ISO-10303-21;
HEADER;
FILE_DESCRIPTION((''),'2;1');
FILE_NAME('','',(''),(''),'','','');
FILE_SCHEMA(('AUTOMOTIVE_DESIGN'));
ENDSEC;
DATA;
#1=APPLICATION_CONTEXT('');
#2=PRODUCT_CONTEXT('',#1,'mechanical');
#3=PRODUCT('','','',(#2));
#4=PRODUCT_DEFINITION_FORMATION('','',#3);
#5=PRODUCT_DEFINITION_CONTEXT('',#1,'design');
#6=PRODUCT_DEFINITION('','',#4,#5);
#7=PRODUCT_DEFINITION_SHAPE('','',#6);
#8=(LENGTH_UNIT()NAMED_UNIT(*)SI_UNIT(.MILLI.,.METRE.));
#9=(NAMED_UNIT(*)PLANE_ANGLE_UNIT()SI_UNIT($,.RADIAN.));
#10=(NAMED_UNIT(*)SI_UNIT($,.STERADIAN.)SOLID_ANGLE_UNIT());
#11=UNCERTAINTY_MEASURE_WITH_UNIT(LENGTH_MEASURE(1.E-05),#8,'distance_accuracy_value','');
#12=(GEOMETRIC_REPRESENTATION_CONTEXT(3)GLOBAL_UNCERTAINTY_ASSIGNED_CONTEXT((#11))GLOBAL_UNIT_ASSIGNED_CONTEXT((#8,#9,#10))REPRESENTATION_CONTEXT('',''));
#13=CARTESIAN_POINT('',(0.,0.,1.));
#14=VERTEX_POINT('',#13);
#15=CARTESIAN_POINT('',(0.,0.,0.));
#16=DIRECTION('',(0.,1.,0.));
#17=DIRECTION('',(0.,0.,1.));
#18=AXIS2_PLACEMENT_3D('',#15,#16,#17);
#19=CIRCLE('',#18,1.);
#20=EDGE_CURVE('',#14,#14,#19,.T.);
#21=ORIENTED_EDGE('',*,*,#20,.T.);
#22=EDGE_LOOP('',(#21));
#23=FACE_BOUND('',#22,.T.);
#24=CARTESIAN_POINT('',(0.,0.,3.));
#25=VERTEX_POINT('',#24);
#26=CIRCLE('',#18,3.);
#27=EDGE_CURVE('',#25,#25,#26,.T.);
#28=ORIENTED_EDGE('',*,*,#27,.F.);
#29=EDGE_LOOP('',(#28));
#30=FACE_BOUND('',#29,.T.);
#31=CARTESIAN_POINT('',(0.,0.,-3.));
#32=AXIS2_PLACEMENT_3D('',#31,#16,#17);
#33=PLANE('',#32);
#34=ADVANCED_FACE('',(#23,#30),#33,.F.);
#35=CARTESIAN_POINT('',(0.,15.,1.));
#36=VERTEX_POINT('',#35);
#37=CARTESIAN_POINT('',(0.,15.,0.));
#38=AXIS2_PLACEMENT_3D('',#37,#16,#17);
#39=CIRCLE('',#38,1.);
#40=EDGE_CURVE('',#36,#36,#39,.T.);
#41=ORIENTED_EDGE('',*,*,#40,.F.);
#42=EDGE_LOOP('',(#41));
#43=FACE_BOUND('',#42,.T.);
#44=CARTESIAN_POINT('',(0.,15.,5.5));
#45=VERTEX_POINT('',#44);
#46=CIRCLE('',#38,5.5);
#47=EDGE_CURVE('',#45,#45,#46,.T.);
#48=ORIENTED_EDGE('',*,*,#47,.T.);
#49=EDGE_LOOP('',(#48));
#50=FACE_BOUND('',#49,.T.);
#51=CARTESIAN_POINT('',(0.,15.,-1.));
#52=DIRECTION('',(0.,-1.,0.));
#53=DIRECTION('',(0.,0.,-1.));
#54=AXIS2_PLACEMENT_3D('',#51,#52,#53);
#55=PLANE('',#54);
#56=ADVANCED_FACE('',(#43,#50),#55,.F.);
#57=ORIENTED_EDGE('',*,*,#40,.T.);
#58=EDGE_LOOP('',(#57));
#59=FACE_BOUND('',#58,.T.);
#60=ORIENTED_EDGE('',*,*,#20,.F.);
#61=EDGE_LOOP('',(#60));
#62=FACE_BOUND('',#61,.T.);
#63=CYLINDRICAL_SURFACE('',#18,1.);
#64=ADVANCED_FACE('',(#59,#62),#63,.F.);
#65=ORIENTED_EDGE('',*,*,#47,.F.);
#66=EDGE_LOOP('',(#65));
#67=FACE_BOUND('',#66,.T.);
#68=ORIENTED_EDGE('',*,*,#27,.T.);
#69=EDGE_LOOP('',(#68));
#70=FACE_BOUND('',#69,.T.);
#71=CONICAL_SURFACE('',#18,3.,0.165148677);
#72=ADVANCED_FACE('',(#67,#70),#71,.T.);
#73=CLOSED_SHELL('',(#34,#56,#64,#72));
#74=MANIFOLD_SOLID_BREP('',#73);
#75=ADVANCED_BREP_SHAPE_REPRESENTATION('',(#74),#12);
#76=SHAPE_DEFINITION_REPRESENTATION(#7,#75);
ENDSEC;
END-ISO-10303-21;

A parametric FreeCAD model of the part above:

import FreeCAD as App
import Part
import Sketcher
from FreeCAD import Vector

doc = App.newDocument("Part")
body = doc.addObject("PartDesign::Body", "Body")

sketch1 = body.newObject("Sketcher::SketchObject", "Sketch")
sketch1.AttachmentSupport = (doc.getObject("YZ_Plane"), [""])
sketch1.MapMode = "FlatFace"
sketch1.addGeometry([
    Part.LineSegment(Vector(15, -5.5, 0), Vector(15, -1, 0)),
    Part.LineSegment(Vector(15, -1, 0), Vector(0, -1, 0)),
    Part.LineSegment(Vector(0, -1, 0), Vector(0, -3, 0)),
    Part.LineSegment(Vector(0, -3, 0), Vector(15, -5.5, 0)),
], False)
sketch1.addConstraint([
    Sketcher.Constraint("Coincident", 0, 2, 1, 1),
    Sketcher.Constraint("Coincident", 1, 2, 2, 1),
    Sketcher.Constraint("Coincident", 2, 2, 3, 1),
    Sketcher.Constraint("Coincident", 3, 2, 0, 1),
    Sketcher.Constraint("Vertical", 0),
    Sketcher.Constraint("Horizontal", 1),
    Sketcher.Constraint("Vertical", 2),
    Sketcher.Constraint("PointOnObject", 1, 2, -2),
    Sketcher.Constraint("DistanceX", 1, 2, 1, 1, 15.0),
    Sketcher.Constraint("DistanceY", 2, 2, 2, 1, 2.0),
    Sketcher.Constraint("DistanceY", 0, 1, 0, 2, 4.5),
    Sketcher.Constraint("DistanceY", 0, 2, -1, 1, 1.0),
])
revolution = body.newObject("PartDesign::Revolution", "Revolution")
revolution.Profile = sketch1
revolution.ReferenceAxis = (sketch1, ["H_Axis"])
revolution.Angle = 360

doc.recompute()
